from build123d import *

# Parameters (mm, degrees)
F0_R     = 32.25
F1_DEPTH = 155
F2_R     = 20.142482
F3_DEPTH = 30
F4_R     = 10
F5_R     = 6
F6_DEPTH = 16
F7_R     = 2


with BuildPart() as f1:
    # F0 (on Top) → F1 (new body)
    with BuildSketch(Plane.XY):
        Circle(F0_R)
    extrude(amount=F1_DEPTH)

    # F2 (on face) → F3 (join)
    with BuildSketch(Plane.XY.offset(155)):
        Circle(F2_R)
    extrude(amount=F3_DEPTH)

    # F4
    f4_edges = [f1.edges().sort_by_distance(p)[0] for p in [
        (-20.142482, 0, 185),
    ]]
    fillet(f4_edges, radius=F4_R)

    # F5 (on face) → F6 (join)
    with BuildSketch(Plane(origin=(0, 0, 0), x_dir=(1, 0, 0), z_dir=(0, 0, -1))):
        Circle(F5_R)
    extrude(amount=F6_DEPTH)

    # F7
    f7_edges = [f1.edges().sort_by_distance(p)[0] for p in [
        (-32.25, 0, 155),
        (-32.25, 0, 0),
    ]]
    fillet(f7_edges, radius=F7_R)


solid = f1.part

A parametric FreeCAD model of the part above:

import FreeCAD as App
import Part
import Sketcher
Q = App.Units.Quantity


def edges_at(feature, points):
    """Names of the edges that pass closest to the given points."""
    edges = feature.Shape.Edges
    near = lambda p: min(range(len(edges)), key=lambda i: edges[i].distToShape(Part.Vertex(*p))[0])
    return sorted({f"Edge{near(p) + 1}" for p in points})

doc = App.newDocument("Part")
params = doc.addObject("Spreadsheet::Sheet", "Params")
for row, (alias, value) in enumerate([
    ("sketch1_diameter", "64.5 mm"),
    ("pad1_length", "155 mm"),
    ("pad2_length", "30 mm"),
    ("fillet_radius", "10 mm"),
    ("sketch3_diameter", "12 mm"),
    ("pad3_length", "16 mm"),
    ("fillet2_radius", "2 mm"),
], start=1):
    params.set(f"A{row}", alias)
    params.set(f"B{row}", "=" + value)
    params.setAlias(f"B{row}", alias)

body = doc.addObject("PartDesign::Body", "Body")

# Sketch on XY plane
sketch1 = doc.addObject("Sketcher::SketchObject", "Sketch")
body.addObject(sketch1)
sketch1.AttachmentSupport = (doc.XY_Plane, [""])
sketch1.MapMode = "FlatFace"
sketch1.addGeometry(Part.Circle(App.Vector(0, 0, 0), App.Vector(0, 0, 1), 32), False)
sketch1.addConstraint([
    Sketcher.Constraint("Coincident", 0, 3, -1, 1),
    Sketcher.Constraint("Diameter", 0, Q("64.5 mm")),
])
sketch1.setExpression("Constraints[1]", "Params.sketch1_diameter")
pad1 = doc.addObject("PartDesign::Pad", "Pad")
body.addObject(pad1)
pad1.Profile = sketch1
pad1.setExpression("Length", "Params.pad1_length")

# Sketch on XY plane
sketch2 = doc.addObject("Sketcher::SketchObject", "Sketch001")
body.addObject(sketch2)
sketch2.AttachmentSupport = (doc.XY_Plane, [""])
sketch2.MapMode = "FlatFace"
sketch2.AttachmentOffset = App.Placement(App.Vector(0, 0, 155), App.Rotation())
sketch2.addGeometry(Part.Circle(App.Vector(0, 0, 0), App.Vector(0, 0, 1), 20), False)
sketch2.addConstraint([
    Sketcher.Constraint("Coincident", 0, 3, -1, 1),
    Sketcher.Constraint("Diameter", 0, Q("40.284964 mm")),
])
pad2 = doc.addObject("PartDesign::Pad", "Pad001")
body.addObject(pad2)
pad2.Profile = sketch2
pad2.setExpression("Length", "Params.pad2_length")
doc.recompute()

fillet = doc.addObject("PartDesign::Fillet", "Fillet")
body.addObject(fillet)
fillet.Base = (pad2, edges_at(pad2, [(-20.142, 0, 185)]))
fillet.setExpression("Radius", "Params.fillet_radius")

# Sketch on XY plane
sketch3 = doc.addObject("Sketcher::SketchObject", "Sketch002")
body.addObject(sketch3)
sketch3.AttachmentSupport = (doc.XY_Plane, [""])
sketch3.MapMode = "FlatFace"
sketch3.addGeometry(Part.Circle(App.Vector(0, 0, 0), App.Vector(0, 0, 1), 6), False)
sketch3.addConstraint([
    Sketcher.Constraint("Coincident", 0, 3, -1, 1),
    Sketcher.Constraint("Diameter", 0, Q("12 mm")),
])
sketch3.setExpression("Constraints[1]", "Params.sketch3_diameter")
pad3 = doc.addObject("PartDesign::Pad", "Pad002")
body.addObject(pad3)
pad3.Profile = sketch3
pad3.setExpression("Length", "Params.pad3_length")
pad3.Reversed = True
doc.recompute()

fillet2 = doc.addObject("PartDesign::Fillet", "Fillet001")
body.addObject(fillet2)
fillet2.Base = (pad3, edges_at(pad3, [(-32.25, 0, 155), (-32.25, 0, 0)]))
fillet2.setExpression("Radius", "Params.fillet2_radius")

doc.recompute()
